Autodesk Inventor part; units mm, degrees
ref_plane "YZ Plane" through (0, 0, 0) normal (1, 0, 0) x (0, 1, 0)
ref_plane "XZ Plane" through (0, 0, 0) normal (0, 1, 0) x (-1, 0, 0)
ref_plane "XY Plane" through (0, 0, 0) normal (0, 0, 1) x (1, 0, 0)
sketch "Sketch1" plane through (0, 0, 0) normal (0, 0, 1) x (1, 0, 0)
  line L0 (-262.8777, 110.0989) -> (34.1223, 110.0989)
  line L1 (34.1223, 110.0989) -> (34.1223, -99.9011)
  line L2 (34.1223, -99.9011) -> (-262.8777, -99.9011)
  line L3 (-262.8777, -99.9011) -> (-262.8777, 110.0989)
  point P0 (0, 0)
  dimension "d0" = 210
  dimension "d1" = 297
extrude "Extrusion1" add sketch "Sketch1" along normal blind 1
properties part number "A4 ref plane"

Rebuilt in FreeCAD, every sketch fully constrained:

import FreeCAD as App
import Part
import Sketcher

V = App.Vector
Q = App.Units.Quantity


def add_polygon(sketch, points):
    """Adds a closed chain of lines whose ends are joined by coincident constraints."""
    first, n = sketch.GeometryCount, len(points)
    for a, b in zip(points, points[1:] + points[:1]):
        sketch.addGeometry(Part.LineSegment(App.Vector(*a, 0), App.Vector(*b, 0)), False)
    for i in range(n):
        sketch.addConstraint(Sketcher.Constraint("Coincident", first + i, 2, first + (i + 1) % n, 1))

doc = App.newDocument("Part")
body = doc.addObject("PartDesign::Body", "Body")

# Sketch on XY plane
sketch1 = body.newObject("Sketcher::SketchObject", "Sketch")
sketch1.AttachmentSupport = (doc.getObject("XY_Plane"), [""])
sketch1.MapMode = "FlatFace"
add_polygon(sketch1, [(34, 110), (-263, 110), (-263, -100), (34, -100)])  # lines 0-3
sketch1.addConstraint([
    Sketcher.Constraint("Horizontal", 0),
    Sketcher.Constraint("Vertical", 1),
    Sketcher.Constraint("Horizontal", 2),
    Sketcher.Constraint("Vertical", 3),
    Sketcher.Constraint("DistanceX", 0, 2, 0, 1, Q("297 mm")),
    Sketcher.Constraint("DistanceY", 1, 2, 1, 1, Q("210 mm")),
    Sketcher.Constraint("DistanceY", -1, 1, 0, 2, Q("110.099 mm")),
    Sketcher.Constraint("DistanceX", 0, 2, -1, 1, Q("262.8777 mm")),
])
pad1 = body.newObject("PartDesign::Pad", "Pad")
pad1.Profile = sketch1
pad1.Length = 1

doc.recompute()
